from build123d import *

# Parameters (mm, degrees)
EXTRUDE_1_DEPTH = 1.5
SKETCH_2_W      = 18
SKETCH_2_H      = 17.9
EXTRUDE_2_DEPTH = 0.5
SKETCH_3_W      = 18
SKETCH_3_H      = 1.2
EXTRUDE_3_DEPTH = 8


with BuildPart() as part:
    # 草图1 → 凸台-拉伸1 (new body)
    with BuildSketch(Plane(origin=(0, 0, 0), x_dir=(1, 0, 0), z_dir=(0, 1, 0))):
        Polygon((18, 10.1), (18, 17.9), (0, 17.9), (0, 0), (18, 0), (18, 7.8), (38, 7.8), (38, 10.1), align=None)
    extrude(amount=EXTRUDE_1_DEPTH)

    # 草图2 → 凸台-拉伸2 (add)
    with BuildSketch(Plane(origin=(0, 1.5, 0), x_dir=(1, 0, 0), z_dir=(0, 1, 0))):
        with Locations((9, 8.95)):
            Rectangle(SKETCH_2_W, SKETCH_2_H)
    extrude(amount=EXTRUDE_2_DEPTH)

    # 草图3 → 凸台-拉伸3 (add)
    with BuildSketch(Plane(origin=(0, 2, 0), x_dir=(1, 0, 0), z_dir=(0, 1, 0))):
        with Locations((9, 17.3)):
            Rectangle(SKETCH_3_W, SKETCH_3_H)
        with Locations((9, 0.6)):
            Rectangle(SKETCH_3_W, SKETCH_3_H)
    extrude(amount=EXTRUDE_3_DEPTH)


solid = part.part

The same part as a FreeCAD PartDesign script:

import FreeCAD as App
import Part
import Sketcher
from FreeCAD import Vector
Q = App.Units.Quantity

doc = App.newDocument("Part")
body = doc.addObject("PartDesign::Body", "Body")

# Sketch on XZ plane
sketch1 = body.newObject("Sketcher::SketchObject", "Sketch")
sketch1.AttachmentSupport = (doc.getObject("XZ_Plane"), [""])
sketch1.MapMode = "FlatFace"
sketch1.addGeometry([
    Part.LineSegment(Vector(18, -10.1, 0), Vector(18, -17.9, 0)),  # 0
    Part.LineSegment(Vector(18, -17.9, 0), Vector(0, -17.9, 0)),  # 1
    Part.LineSegment(Vector(0, -17.9, 0), Vector(0, 0, 0)),  # 2
    Part.LineSegment(Vector(0, 0, 0), Vector(18, 0, 0)),  # 3
    Part.LineSegment(Vector(18, 0, 0), Vector(18, -7.8, 0)),  # 4
    Part.LineSegment(Vector(18, -7.8, 0), Vector(38, -7.8, 0)),  # 5
    Part.LineSegment(Vector(38, -7.8, 0), Vector(38, -10.1, 0)),  # 6
    Part.LineSegment(Vector(38, -10.1, 0), Vector(18, -10.1, 0)),  # 7
], False)
sketch1.addConstraint([
    Sketcher.Constraint("Coincident", 0, 2, 1, 1),
    Sketcher.Constraint("Coincident", 1, 2, 2, 1),
    Sketcher.Constraint("Coincident", 2, 2, 3, 1),
    Sketcher.Constraint("Coincident", 3, 2, 4, 1),
    Sketcher.Constraint("Coincident", 4, 2, 5, 1),
    Sketcher.Constraint("Coincident", 5, 2, 6, 1),
    Sketcher.Constraint("Coincident", 6, 2, 7, 1),
    Sketcher.Constraint("Coincident", 7, 2, 0, 1),
    Sketcher.Constraint("Vertical", 0),
    Sketcher.Constraint("Horizontal", 1),
    Sketcher.Constraint("Vertical", 2),
    Sketcher.Constraint("Horizontal", 3),
    Sketcher.Constraint("Vertical", 4),
    Sketcher.Constraint("Horizontal", 5),
    Sketcher.Constraint("Vertical", 6),
    Sketcher.Constraint("Horizontal", 7),
    Sketcher.Constraint("Coincident", 2, 2, -1, 1),
    Sketcher.Constraint("Vertical", 0, 2, 3, 2),
    Sketcher.Constraint("Equal", 0, 4),
    Sketcher.Constraint("DistanceX", 1, 2, 1, 1, Q("18 mm")),
    Sketcher.Constraint("DistanceX", 5, 1, 5, 2, Q("20 mm")),
    Sketcher.Constraint("DistanceY", 0, 2, 0, 1, Q("7.8 mm")),
    Sketcher.Constraint("DistanceY", 2, 1, 2, 2, Q("17.9 mm")),
])
pad1 = body.newObject("PartDesign::Pad", "Pad")
pad1.Profile = sketch1
pad1.Length = 1.5
pad1.Reversed = True

# Sketch on XZ plane
sketch2 = body.newObject("Sketcher::SketchObject", "Sketch001")
sketch2.AttachmentSupport = (doc.getObject("XZ_Plane"), [""])
sketch2.MapMode = "FlatFace"
sketch2.AttachmentOffset = App.Placement(Vector(0, 0, -1.5), App.Rotation())
sketch2.addGeometry([
    Part.LineSegment(Vector(0, -18, 0), Vector(0, 0, 0)),
    Part.LineSegment(Vector(0, 0, 0), Vector(18, 0, 0)),
    Part.LineSegment(Vector(18, 0, 0), Vector(18, -18, 0)),
    Part.LineSegment(Vector(18, -18, 0), Vector(0, -18, 0)),
], False)
sketch2.addConstraint([
    Sketcher.Constraint("Coincident", 0, 2, 1, 1),
    Sketcher.Constraint("Coincident", 1, 2, 2, 1),
    Sketcher.Constraint("Coincident", 2, 2, 3, 1),
    Sketcher.Constraint("Coincident", 3, 2, 0, 1),
    Sketcher.Constraint("Vertical", 0),
    Sketcher.Constraint("Horizontal", 1),
    Sketcher.Constraint("Vertical", 2),
    Sketcher.Constraint("Horizontal", 3),
    Sketcher.Constraint("Coincident", 0, 2, -1, 1),
    Sketcher.Constraint("DistanceX", 1, 1, 1, 2, Q("18 mm")),
    Sketcher.Constraint("DistanceY", 0, 1, 0, 2, Q("17.9 mm")),
])
pad2 = body.newObject("PartDesign::Pad", "Pad001")
pad2.Profile = sketch2
pad2.Length = 0.5
pad2.Reversed = True

# Sketch on XZ plane
sketch3 = body.newObject("Sketcher::SketchObject", "Sketch002")
sketch3.AttachmentSupport = (doc.getObject("XZ_Plane"), [""])
sketch3.MapMode = "FlatFace"
sketch3.AttachmentOffset = App.Placement(Vector(0, 0, -2), App.Rotation())
sketch3.addGeometry([
    Part.LineSegment(Vector(0, -17.9, 0), Vector(0, -16.7, 0)),  # 0
    Part.LineSegment(Vector(0, -16.7, 0), Vector(18, -16.7, 0)),  # 1
    Part.LineSegment(Vector(18, -16.7, 0), Vector(18, -17.9, 0)),  # 2
    Part.LineSegment(Vector(18, -17.9, 0), Vector(0, -17.9, 0)),  # 3
    Part.LineSegment(Vector(0, -1.2, 0), Vector(0, 0, 0)),  # 4
    Part.LineSegment(Vector(0, 0, 0), Vector(18, 0, 0)),  # 5
    Part.LineSegment(Vector(18, 0, 0), Vector(18, -1.2, 0)),  # 6
    Part.LineSegment(Vector(18, -1.2, 0), Vector(0, -1.2, 0)),  # 7
], False)
sketch3.addConstraint([
    Sketcher.Constraint("Coincident", 0, 2, 1, 1),
    Sketcher.Constraint("Coincident", 1, 2, 2, 1),
    Sketcher.Constraint("Coincident", 2, 2, 3, 1),
    Sketcher.Constraint("Coincident", 3, 2, 0, 1),
    Sketcher.Constraint("Coincident", 4, 2, 5, 1),
    Sketcher.Constraint("Coincident", 5, 2, 6, 1),
    Sketcher.Constraint("Coincident", 6, 2, 7, 1),
    Sketcher.Constraint("Coincident", 7, 2, 4, 1),
    Sketcher.Constraint("Vertical", 0),
    Sketcher.Constraint("Horizontal", 1),
    Sketcher.Constraint("Vertical", 2),
    Sketcher.Constraint("Horizontal", 3),
    Sketcher.Constraint("Vertical", 4),
    Sketcher.Constraint("Horizontal", 5),
    Sketcher.Constraint("Vertical", 6),
    Sketcher.Constraint("Horizontal", 7),
    Sketcher.Constraint("Coincident", 4, 2, -1, 1),
    Sketcher.Constraint("PointOnObject", 0, 2, -2),
    Sketcher.Constraint("Vertical", 2, 2, 5, 2),
    Sketcher.Constraint("Equal", 2, 4),
    Sketcher.Constraint("DistanceX", 1, 1, 1, 2, Q("18 mm")),
    Sketcher.Constraint("DistanceY", 0, 1, 0, 2, Q("1.2 mm")),
    Sketcher.Constraint("DistanceY", 0, 2, -1, 1, Q("16.7 mm")),
])
pad3 = body.newObject("PartDesign::Pad", "Pad002")
pad3.Profile = sketch3
pad3.Length = 8
pad3.Reversed = True

doc.recompute()
